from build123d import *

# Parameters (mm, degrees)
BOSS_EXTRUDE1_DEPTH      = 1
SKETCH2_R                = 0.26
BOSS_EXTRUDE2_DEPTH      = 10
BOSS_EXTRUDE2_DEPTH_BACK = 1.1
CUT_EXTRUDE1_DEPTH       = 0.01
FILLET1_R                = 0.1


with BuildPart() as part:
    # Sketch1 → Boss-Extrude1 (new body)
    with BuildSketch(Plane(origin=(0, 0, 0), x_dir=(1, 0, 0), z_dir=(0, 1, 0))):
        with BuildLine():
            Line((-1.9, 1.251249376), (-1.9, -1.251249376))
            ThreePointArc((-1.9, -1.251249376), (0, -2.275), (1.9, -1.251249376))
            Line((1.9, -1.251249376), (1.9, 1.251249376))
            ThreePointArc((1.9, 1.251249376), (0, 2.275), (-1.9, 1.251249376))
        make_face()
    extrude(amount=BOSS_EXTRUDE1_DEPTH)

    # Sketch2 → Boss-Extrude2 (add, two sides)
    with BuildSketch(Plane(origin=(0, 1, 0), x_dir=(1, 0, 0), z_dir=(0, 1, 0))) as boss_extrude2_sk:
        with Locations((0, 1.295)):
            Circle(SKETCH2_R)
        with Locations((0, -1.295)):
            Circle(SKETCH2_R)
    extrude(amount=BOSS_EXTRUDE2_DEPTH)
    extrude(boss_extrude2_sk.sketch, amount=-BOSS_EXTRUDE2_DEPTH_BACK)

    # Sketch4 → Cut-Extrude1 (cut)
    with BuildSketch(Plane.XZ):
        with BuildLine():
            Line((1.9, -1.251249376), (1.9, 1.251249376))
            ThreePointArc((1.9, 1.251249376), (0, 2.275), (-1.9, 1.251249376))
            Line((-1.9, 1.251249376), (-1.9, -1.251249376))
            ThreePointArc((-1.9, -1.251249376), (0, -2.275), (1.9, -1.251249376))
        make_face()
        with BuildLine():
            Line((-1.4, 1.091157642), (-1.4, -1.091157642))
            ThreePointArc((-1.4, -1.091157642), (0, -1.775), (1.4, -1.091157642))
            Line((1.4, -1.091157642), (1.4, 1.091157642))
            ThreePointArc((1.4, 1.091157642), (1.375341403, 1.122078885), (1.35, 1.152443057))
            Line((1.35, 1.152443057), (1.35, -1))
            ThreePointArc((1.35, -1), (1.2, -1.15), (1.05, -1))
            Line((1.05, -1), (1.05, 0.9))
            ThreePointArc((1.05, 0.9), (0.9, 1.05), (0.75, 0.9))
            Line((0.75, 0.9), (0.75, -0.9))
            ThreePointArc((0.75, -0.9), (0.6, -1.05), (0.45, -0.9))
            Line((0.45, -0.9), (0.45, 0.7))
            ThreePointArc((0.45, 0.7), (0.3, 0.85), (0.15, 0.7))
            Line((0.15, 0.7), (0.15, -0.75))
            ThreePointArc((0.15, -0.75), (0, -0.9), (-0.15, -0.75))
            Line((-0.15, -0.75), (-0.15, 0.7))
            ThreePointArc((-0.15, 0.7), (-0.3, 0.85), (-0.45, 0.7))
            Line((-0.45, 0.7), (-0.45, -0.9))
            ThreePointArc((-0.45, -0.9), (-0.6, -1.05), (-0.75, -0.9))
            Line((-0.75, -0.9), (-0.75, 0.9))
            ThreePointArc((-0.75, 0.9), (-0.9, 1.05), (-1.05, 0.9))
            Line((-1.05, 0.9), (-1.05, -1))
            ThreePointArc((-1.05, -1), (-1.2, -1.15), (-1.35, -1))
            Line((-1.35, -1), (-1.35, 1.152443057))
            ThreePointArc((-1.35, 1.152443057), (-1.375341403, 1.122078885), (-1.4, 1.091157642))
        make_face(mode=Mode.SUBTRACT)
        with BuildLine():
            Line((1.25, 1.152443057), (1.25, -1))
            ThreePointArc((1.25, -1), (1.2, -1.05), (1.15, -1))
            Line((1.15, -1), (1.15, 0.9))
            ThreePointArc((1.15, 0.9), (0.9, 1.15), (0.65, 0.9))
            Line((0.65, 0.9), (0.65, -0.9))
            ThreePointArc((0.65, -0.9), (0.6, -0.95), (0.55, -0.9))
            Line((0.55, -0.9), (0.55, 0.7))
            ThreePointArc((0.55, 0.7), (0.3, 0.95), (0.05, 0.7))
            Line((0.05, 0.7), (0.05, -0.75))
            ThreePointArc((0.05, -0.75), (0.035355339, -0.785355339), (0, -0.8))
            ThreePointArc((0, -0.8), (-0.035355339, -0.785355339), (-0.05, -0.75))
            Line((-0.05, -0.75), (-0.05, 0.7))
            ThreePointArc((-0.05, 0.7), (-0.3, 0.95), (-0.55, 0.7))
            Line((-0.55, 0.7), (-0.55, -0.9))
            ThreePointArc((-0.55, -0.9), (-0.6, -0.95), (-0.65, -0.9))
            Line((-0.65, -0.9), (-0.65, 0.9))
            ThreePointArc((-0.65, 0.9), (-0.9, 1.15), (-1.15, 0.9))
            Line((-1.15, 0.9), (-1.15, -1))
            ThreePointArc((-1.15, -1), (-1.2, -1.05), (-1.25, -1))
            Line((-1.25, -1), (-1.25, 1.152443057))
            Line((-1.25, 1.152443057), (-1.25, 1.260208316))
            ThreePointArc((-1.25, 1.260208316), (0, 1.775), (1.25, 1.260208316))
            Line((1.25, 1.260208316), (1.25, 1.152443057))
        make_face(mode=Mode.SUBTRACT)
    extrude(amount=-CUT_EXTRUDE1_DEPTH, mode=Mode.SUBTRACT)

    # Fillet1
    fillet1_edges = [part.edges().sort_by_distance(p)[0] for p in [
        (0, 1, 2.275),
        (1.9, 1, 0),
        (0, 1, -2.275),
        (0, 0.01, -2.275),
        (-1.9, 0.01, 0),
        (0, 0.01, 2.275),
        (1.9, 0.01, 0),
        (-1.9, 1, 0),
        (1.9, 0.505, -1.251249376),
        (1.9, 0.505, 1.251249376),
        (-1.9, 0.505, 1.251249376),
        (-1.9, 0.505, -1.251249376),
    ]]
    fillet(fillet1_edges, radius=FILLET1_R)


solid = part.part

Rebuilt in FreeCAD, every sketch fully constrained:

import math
import FreeCAD as App
import Part
import Sketcher
from FreeCAD import Vector
Q = App.Units.Quantity


def edges_at(feature, points):
    """Names of the edges that pass closest to the given points."""
    edges = feature.Shape.Edges
    near = lambda p: min(range(len(edges)), key=lambda i: edges[i].distToShape(Part.Vertex(*p))[0])
    return sorted({f"Edge{near(p) + 1}" for p in points})

doc = App.newDocument("Part")
body = doc.addObject("PartDesign::Body", "Body")

# Sketch on XZ plane
sketch1 = doc.addObject("Sketcher::SketchObject", "Sketch")
body.addObject(sketch1)
sketch1.AttachmentSupport = (doc.XZ_Plane, [""])
sketch1.MapMode = "FlatFace"
sketch1.addGeometry(Part.LineSegment(Vector(-1.9, -1.251249, 0), Vector(-1.9, 1.251249, 0)), False)
sketch1.addGeometry(Part.ArcOfCircle(Part.Circle(Vector(0, 0, 0), Vector(0, 0, 1), 2.275), math.radians(33.366994), math.radians(146.633006)), False)
sketch1.addGeometry(Part.LineSegment(Vector(1.9, 1.251249, 0), Vector(1.9, -1.251249, 0)), False)
sketch1.addGeometry(Part.ArcOfCircle(Part.Circle(Vector(0, 0, 0), Vector(0, 0, 1), 2.275), math.radians(-146.633006), math.radians(-33.366994)), False)
sketch1.addConstraint(Sketcher.Constraint("Coincident", 0, 2, 1, 2))
sketch1.addConstraint(Sketcher.Constraint("Coincident", 1, 1, 2, 1))
sketch1.addConstraint(Sketcher.Constraint("Coincident", 2, 2, 3, 2))
sketch1.addConstraint(Sketcher.Constraint("Coincident", 3, 1, 0, 1))
sketch1.addConstraint(Sketcher.Constraint("Vertical", 0))
sketch1.addConstraint(Sketcher.Constraint("Vertical", 2))
sketch1.addConstraint(Sketcher.Constraint("Coincident", 1, 3, -1, 1))
sketch1.addConstraint(Sketcher.Constraint("Coincident", 3, 3, -1, 1))
sketch1.addConstraint(Sketcher.Constraint("Equal", 1, 3))
sketch1.addConstraint(Sketcher.Constraint("Horizontal", 0, 2, 1, 1))
sketch1.addConstraint(Sketcher.Constraint("Radius", 1, Q("2.275 mm")))
sketch1.addConstraint(Sketcher.Constraint("DistanceX", 0, 2, -1, 1, Q("1.9 mm")))
pad1 = doc.addObject("PartDesign::Pad", "Pad")
body.addObject(pad1)
pad1.Profile = sketch1
pad1.Length = 1
pad1.Reversed = True

# Sketch on XZ plane
sketch2 = doc.addObject("Sketcher::SketchObject", "Sketch001")
body.addObject(sketch2)
sketch2.AttachmentSupport = (doc.XZ_Plane, [""])
sketch2.MapMode = "FlatFace"
sketch2.AttachmentOffset = App.Placement(Vector(0, 0, -1), App.Rotation())
sketch2.addGeometry(Part.Circle(Vector(0, -1.295, 0), Vector(0, 0, 1), 0.26), False)
sketch2.addGeometry(Part.Circle(Vector(0, 1.295, 0), Vector(0, 0, 1), 0.26), False)
sketch2.addConstraint(Sketcher.Constraint("Equal", 0, 1))
sketch2.addConstraint(Sketcher.Constraint("Symmetric", 0, 3, 1, 3, -1, 1))
sketch2.addConstraint(Sketcher.Constraint("PointOnObject", 0, 3, -2))
sketch2.addConstraint(Sketcher.Constraint("Diameter", 0, Q("0.52 mm")))
sketch2.addConstraint(Sketcher.Constraint("DistanceY", 0, 3, 1, 3, Q("2.59 mm")))
pad2 = doc.addObject("PartDesign::Pad", "Pad001")
body.addObject(pad2)
pad2.Profile = sketch2
pad2.Type = "TwoLengths"
pad2.Length = 10
pad2.Length2 = 1.1
pad2.Reversed = True

# Sketch on XZ plane
sketch3 = doc.addObject("Sketcher::SketchObject", "Sketch002")
body.addObject(sketch3)
sketch3.AttachmentSupport = (doc.XZ_Plane, [""])
sketch3.MapMode = "FlatFace"
sketch3.addGeometry(Part.LineSegment(Vector(1.9, -1.251249, 0), Vector(1.9, 1.251249, 0)), False)
sketch3.addGeometry(Part.ArcOfCircle(Part.Circle(Vector(0, 0, 0), Vector(0, 0, 1), 2.275), math.radians(33.366994), math.radians(146.633006)), False)
sketch3.addGeometry(Part.LineSegment(Vector(-1.9, 1.251249, 0), Vector(-1.9, -1.251249, 0)), False)
sketch3.addGeometry(Part.ArcOfCircle(Part.Circle(Vector(0, 0, 0), Vector(0, 0, 1), 2.275), math.radians(-146.633006), math.radians(-33.366994)), False)
sketch3.addGeometry(Part.LineSegment(Vector(-1.4, -1.091158, 0), Vector(-1.4, 1.091158, 0)), False)
sketch3.addGeometry(Part.ArcOfCircle(Part.Circle(Vector(0.000001, 0, 0), Vector(0, 0, 1), 1.775001), math.radians(139.51389), math.radians(142.067209)), False)
sketch3.addGeometry(Part.LineSegment(Vector(-1.35, 1.152443, 0), Vector(-1.35, -1, 0)), False)
sketch3.addGeometry(Part.ArcOfCircle(Part.Circle(Vector(-1.2, -1, 0), Vector(0, 0, 1), 0.15), math.radians(180), math.radians(360)), False)
sketch3.addGeometry(Part.LineSegment(Vector(-1.05, -1, 0), Vector(-1.05, 0.9, 0)), False)
sketch3.addGeometry(Part.ArcOfCircle(Part.Circle(Vector(-0.9, 0.9, 0), Vector(0, 0, 1), 0.15), math.radians(0), math.radians(180)), False)
sketch3.addGeometry(Part.LineSegment(Vector(-0.75, 0.9, 0), Vector(-0.75, -0.9, 0)), False)
sketch3.addGeometry(Part.ArcOfCircle(Part.Circle(Vector(-0.6, -0.9, 0), Vector(0, 0, 1), 0.15), math.radians(180), math.radians(360)), False)
sketch3.addGeometry(Part.LineSegment(Vector(-0.45, -0.9, 0), Vector(-0.45, 0.7, 0)), False)
sketch3.addGeometry(Part.ArcOfCircle(Part.Circle(Vector(-0.3, 0.7, 0), Vector(0, 0, 1), 0.15), math.radians(0), math.radians(180)), False)
sketch3.addGeometry(Part.LineSegment(Vector(-0.15, 0.7, 0), Vector(-0.15, -0.75, 0)), False)
sketch3.addGeometry(Part.ArcOfCircle(Part.Circle(Vector(0, -0.75, 0), Vector(0, 0, 1), 0.15), math.radians(180), math.radians(360)), False)
sketch3.addGeometry(Part.LineSegment(Vector(0.15, -0.75, 0), Vector(0.15, 0.7, 0)), False)
sketch3.addGeometry(Part.ArcOfCircle(Part.Circle(Vector(0.3, 0.7, 0), Vector(0, 0, 1), 0.15), math.radians(0), math.radians(180)), False)
sketch3.addGeometry(Part.LineSegment(Vector(0.45, 0.7, 0), Vector(0.45, -0.9, 0)), False)
sketch3.addGeometry(Part.ArcOfCircle(Part.Circle(Vector(0.6, -0.9, 0), Vector(0, 0, 1), 0.15), math.radians(180), math.radians(360)), False)
sketch3.addGeometry(Part.LineSegment(Vector(0.75, -0.9, 0), Vector(0.75, 0.9, 0)), False)
sketch3.addGeometry(Part.ArcOfCircle(Part.Circle(Vector(0.9, 0.9, 0), Vector(0, 0, 1), 0.15), math.radians(0), math.radians(180)), False)
sketch3.addGeometry(Part.LineSegment(Vector(1.05, 0.9, 0), Vector(1.05, -1, 0)), False)
sketch3.addGeometry(Part.ArcOfCircle(Part.Circle(Vector(1.2, -1, 0), Vector(0, 0, 1), 0.15), math.radians(180), math.radians(360)), False)
sketch3.addGeometry(Part.LineSegment(Vector(1.35, -1, 0), Vector(1.35, 1.152443, 0)), False)
sketch3.addGeometry(Part.ArcOfCircle(Part.Circle(Vector(-0.000001, 0, 0), Vector(0, 0, 1), 1.775001), math.radians(37.932791), math.radians(40.48611)), False)
sketch3.addGeometry(Part.LineSegment(Vector(1.4, 1.091158, 0), Vector(1.4, -1.091158, 0)), False)
sketch3.addGeometry(Part.ArcOfCircle(Part.Circle(Vector(0, 0, 0), Vector(0, 0, 1), 1.775), math.radians(-142.067209), math.radians(-37.932791)), False)
sketch3.addGeometry(Part.LineSegment(Vector(1.25, 1.260208, 0), Vector(1.25, -1, 0)), False)
sketch3.addGeometry(Part.ArcOfCircle(Part.Circle(Vector(1.2, -1, 0), Vector(0, 0, 1), 0.05), math.radians(180), math.radians(360)), False)
sketch3.addGeometry(Part.LineSegment(Vector(1.15, -1, 0), Vector(1.15, 0.9, 0)), False)
sketch3.addGeometry(Part.ArcOfCircle(Part.Circle(Vector(0.9, 0.9, 0), Vector(0, 0, 1), 0.25), math.radians(0), math.radians(180)), False)
sketch3.addGeometry(Part.LineSegment(Vector(0.65, 0.9, 0), Vector(0.65, -0.9, 0)), False)
sketch3.addGeometry(Part.ArcOfCircle(Part.Circle(Vector(0.6, -0.9, 0), Vector(0, 0, 1), 0.05), math.radians(180), math.radians(360)), False)
sketch3.addGeometry(Part.LineSegment(Vector(0.55, -0.9, 0), Vector(0.55, 0.7, 0)), False)
sketch3.addGeometry(Part.ArcOfCircle(Part.Circle(Vector(0.3, 0.7, 0), Vector(0, 0, 1), 0.25), math.radians(0), math.radians(180)), False)
sketch3.addGeometry(Part.LineSegment(Vector(0.05, 0.7, 0), Vector(0.05, -0.75, 0)), False)
sketch3.addGeometry(Part.ArcOfCircle(Part.Circle(Vector(0, -0.75, 0), Vector(0, 0, 1), 0.05), math.radians(-90), math.radians(0)), False)
sketch3.addGeometry(Part.ArcOfCircle(Part.Circle(Vector(0, -0.75, 0), Vector(0, 0, 1), 0.05), math.radians(180), math.radians(270)), False)
sketch3.addGeometry(Part.LineSegment(Vector(-0.05, -0.75, 0), Vector(-0.05, 0.7, 0)), False)
sketch3.addGeometry(Part.ArcOfCircle(Part.Circle(Vector(-0.3, 0.7, 0), Vector(0, 0, 1), 0.25), math.radians(0), math.radians(180)), False)
sketch3.addGeometry(Part.LineSegment(Vector(-0.55, 0.7, 0), Vector(-0.55, -0.9, 0)), False)
sketch3.addGeometry(Part.ArcOfCircle(Part.Circle(Vector(-0.6, -0.9, 0), Vector(0, 0, 1), 0.05), math.radians(180), math.radians(360)), False)
sketch3.addGeometry(Part.LineSegment(Vector(-0.65, -0.9, 0), Vector(-0.65, 0.9, 0)), False)
sketch3.addGeometry(Part.ArcOfCircle(Part.Circle(Vector(-0.9, 0.9, 0), Vector(0, 0, 1), 0.25), math.radians(0), math.radians(180)), False)
sketch3.addGeometry(Part.LineSegment(Vector(-1.15, 0.9, 0), Vector(-1.15, -1, 0)), False)
sketch3.addGeometry(Part.ArcOfCircle(Part.Circle(Vector(-1.2, -1, 0), Vector(0, 0, 1), 0.05), math.radians(180), math.radians(360)), False)
sketch3.addGeometry(Part.LineSegment(Vector(-1.25, -1, 0), Vector(-1.25, 1.260208, 0)), False)
sketch3.addGeometry(Part.ArcOfCircle(Part.Circle(Vector(0, 0, 0), Vector(0, 0, 1), 1.775), math.radians(45.233005), math.radians(134.766995)), False)
sketch3.addConstraint(Sketcher.Constraint("Coincident", 0, 2, 1, 1))
sketch3.addConstraint(Sketcher.Constraint("Coincident", 1, 2, 2, 1))
sketch3.addConstraint(Sketcher.Constraint("Coincident", 2, 2, 3, 1))
sketch3.addConstraint(Sketcher.Constraint("Coincident", 3, 2, 0, 1))
sketch3.addConstraint(Sketcher.Constraint("Coincident", 4, 2, 5, 2))
sketch3.addConstraint(Sketcher.Constraint("Coincident", 5, 1, 6, 1))
sketch3.addConstraint(Sketcher.Constraint("Tangent", 6, 2, 7, 1))
sketch3.addConstraint(Sketcher.Constraint("Tangent", 7, 2, 8, 1))
sketch3.addConstraint(Sketcher.Constraint("Tangent", 8, 2, 9, 2))
sketch3.addConstraint(Sketcher.Constraint("Tangent", 9, 1, 10, 1))
sketch3.addConstraint(Sketcher.Constraint("Tangent", 10, 2, 11, 1))
sketch3.addConstraint(Sketcher.Constraint("Tangent", 11, 2, 12, 1))
sketch3.addConstraint(Sketcher.Constraint("Tangent", 12, 2, 13, 2))
sketch3.addConstraint(Sketcher.Constraint("Tangent", 13, 1, 14, 1))
sketch3.addConstraint(Sketcher.Constraint("Tangent", 14, 2, 15, 1))
sketch3.addConstraint(Sketcher.Constraint("Tangent", 15, 2, 16, 1))
sketch3.addConstraint(Sketcher.Constraint("Tangent", 16, 2, 17, 2))
sketch3.addConstraint(Sketcher.Constraint("Tangent", 17, 1, 18, 1))
sketch3.addConstraint(Sketcher.Constraint("Tangent", 18, 2, 19, 1))
sketch3.addConstraint(Sketcher.Constraint("Tangent", 19, 2, 20, 1))
sketch3.addConstraint(Sketcher.Constraint("Tangent", 20, 2, 21, 2))
sketch3.addConstraint(Sketcher.Constraint("Tangent", 21, 1, 22, 1))
sketch3.addConstraint(Sketcher.Constraint("Tangent", 22, 2, 23, 1))
sketch3.addConstraint(Sketcher.Constraint("Tangent", 23, 2, 24, 1))
sketch3.addConstraint(Sketcher.Constraint("Coincident", 24, 2, 25, 2))
sketch3.addConstraint(Sketcher.Constraint("Coincident", 25, 1, 26, 1))
sketch3.addConstraint(Sketcher.Constraint("Coincident", 26, 2, 27, 2))
sketch3.addConstraint(Sketcher.Constraint("Coincident", 27, 1, 4, 1))
sketch3.addConstraint(Sketcher.Constraint("Tangent", 28, 2, 29, 2))
sketch3.addConstraint(Sketcher.Constraint("Tangent", 29, 1, 30, 1))
sketch3.addConstraint(Sketcher.Constraint("Tangent", 30, 2, 31, 1))
sketch3.addConstraint(Sketcher.Constraint("Tangent", 31, 2, 32, 1))
sketch3.addConstraint(Sketcher.Constraint("Tangent", 32, 2, 33, 2))
sketch3.addConstraint(Sketcher.Constraint("Tangent", 33, 1, 34, 1))
sketch3.addConstraint(Sketcher.Constraint("Tangent", 34, 2, 35, 1))
sketch3.addConstraint(Sketcher.Constraint("Tangent", 35, 2, 36, 1))
sketch3.addConstraint(Sketcher.Constraint("Tangent", 36, 2, 37, 2))
sketch3.addConstraint(Sketcher.Constraint("Tangent", 37, 1, 38, 2))
sketch3.addConstraint(Sketcher.Constraint("Tangent", 38, 1, 39, 1))
sketch3.addConstraint(Sketcher.Constraint("Tangent", 39, 2, 40, 1))
sketch3.addConstraint(Sketcher.Constraint("Tangent", 40, 2, 41, 1))
sketch3.addConstraint(Sketcher.Constraint("Tangent", 41, 2, 42, 2))
sketch3.addConstraint(Sketcher.Constraint("Tangent", 42, 1, 43, 1))
sketch3.addConstraint(Sketcher.Constraint("Tangent", 43, 2, 44, 1))
sketch3.addConstraint(Sketcher.Constraint("Tangent", 44, 2, 45, 1))
sketch3.addConstraint(Sketcher.Constraint("Tangent", 45, 2, 46, 2))
sketch3.addConstraint(Sketcher.Constraint("Tangent", 46, 1, 47, 1))
sketch3.addConstraint(Sketcher.Constraint("Coincident", 47, 2, 48, 2))
sketch3.addConstraint(Sketcher.Constraint("Coincident", 48, 1, 28, 1))
sketch3.addConstraint(Sketcher.Constraint("Vertical", 0))
sketch3.addConstraint(Sketcher.Constraint("Vertical", 2))
sketch3.addConstraint(Sketcher.Constraint("Vertical", 4))
sketch3.addConstraint(Sketcher.Constraint("Vertical", 6))
sketch3.addConstraint(Sketcher.Constraint("Vertical", 8))
sketch3.addConstraint(Sketcher.Constraint("Vertical", 10))
sketch3.addConstraint(Sketcher.Constraint("Vertical", 12))
sketch3.addConstraint(Sketcher.Constraint("Vertical", 14))
sketch3.addConstraint(Sketcher.Constraint("Vertical", 16))
sketch3.addConstraint(Sketcher.Constraint("Vertical", 18))
sketch3.addConstraint(Sketcher.Constraint("Vertical", 20))
sketch3.addConstraint(Sketcher.Constraint("Vertical", 22))
sketch3.addConstraint(Sketcher.Constraint("Vertical", 24))
sketch3.addConstraint(Sketcher.Constraint("Vertical", 26))
sketch3.addConstraint(Sketcher.Constraint("Vertical", 28))
sketch3.addConstraint(Sketcher.Constraint("Vertical", 30))
sketch3.addConstraint(Sketcher.Constraint("Vertical", 32))
sketch3.addConstraint(Sketcher.Constraint("Vertical", 34))
sketch3.addConstraint(Sketcher.Constraint("Vertical", 36))
sketch3.addConstraint(Sketcher.Constraint("Vertical", 39))
sketch3.addConstraint(Sketcher.Constraint("Vertical", 41))
sketch3.addConstraint(Sketcher.Constraint("Vertical", 43))
sketch3.addConstraint(Sketcher.Constraint("Vertical", 45))
sketch3.addConstraint(Sketcher.Constraint("Vertical", 47))
sketch3.addConstraint(Sketcher.Constraint("Coincident", 1, 3, -1, 1))
sketch3.addConstraint(Sketcher.Constraint("Coincident", 3, 3, -1, 1))
sketch3.addConstraint(Sketcher.Constraint("Coincident", 5, 3, -1, 1))
sketch3.addConstraint(Sketcher.Constraint("Coincident", 25, 3, -1, 1))
sketch3.addConstraint(Sketcher.Constraint("Coincident", 27, 3, -1, 1))
sketch3.addConstraint(Sketcher.Constraint("Coincident", 48, 3, -1, 1))
sketch3.addConstraint(Sketcher.Constraint("Coincident", 29, 3, 23, 3))
sketch3.addConstraint(Sketcher.Constraint("Coincident", 31, 3, 21, 3))
sketch3.addConstraint(Sketcher.Constraint("Coincident", 33, 3, 19, 3))
sketch3.addConstraint(Sketcher.Constraint("Coincident", 35, 3, 17, 3))
sketch3.addConstraint(Sketcher.Constraint("Coincident", 37, 3, 15, 3))
sketch3.addConstraint(Sketcher.Constraint("Coincident", 40, 3, 13, 3))
sketch3.addConstraint(Sketcher.Constraint("Coincident", 42, 3, 11, 3))
sketch3.addConstraint(Sketcher.Constraint("Coincident", 44, 3, 9, 3))
sketch3.addConstraint(Sketcher.Constraint("Coincident", 46, 3, 7, 3))
sketch3.addConstraint(Sketcher.Constraint("Equal", 1, 3))
sketch3.addConstraint(Sketcher.Constraint("Equal", 7, 9))
sketch3.addConstraint(Sketcher.Constraint("Equal", 9, 11))
sketch3.addConstraint(Sketcher.Constraint("Equal", 11, 13))
sketch3.addConstraint(Sketcher.Constraint("Equal", 13, 15))
sketch3.addConstraint(Sketcher.Constraint("Equal", 15, 17))
sketch3.addConstraint(Sketcher.Constraint("Equal", 17, 19))
sketch3.addConstraint(Sketcher.Constraint("Equal", 19, 21))
sketch3.addConstraint(Sketcher.Constraint("Equal", 21, 23))
sketch3.addConstraint(Sketcher.Constraint("Equal", 5, 25))
sketch3.addConstraint(Sketcher.Constraint("Equal", 25, 27))
sketch3.addConstraint(Sketcher.Constraint("Equal", 37, 38))
sketch3.addConstraint(Sketcher.Constraint("Equal", 27, 48))
sketch3.addConstraint(Sketcher.Constraint("Symmetric", 9, 1, 19, 2, -1, 1))
sketch3.addConstraint(Sketcher.Constraint("PointOnObject", 37, 1, -2))
sketch3.addConstraint(Sketcher.Constraint("Horizontal", 13, 3, 17, 3))
sketch3.addConstraint(Sketcher.Constraint("Horizontal", 11, 3, 19, 3))
sketch3.addConstraint(Sketcher.Constraint("Horizontal", 9, 3, 21, 3))
sketch3.addConstraint(Sketcher.Constraint("Horizontal", 7, 3, 23, 3))
sketch3.addConstraint(Sketcher.Constraint("Horizontal", 0, 2, 1, 2))
sketch3.addConstraint(Sketcher.Constraint("Horizontal", 4, 2, 25, 1))
sketch3.addConstraint(Sketcher.Constraint("Radius", 7, Q("0.15 mm")))
sketch3.addConstraint(Sketcher.Constraint("Radius", 29, Q("0.05 mm")))
sketch3.addConstraint(Sketcher.Constraint("DistanceY", 8, 1, 8, 2, Q("1.9 mm")))
sketch3.addConstraint(Sketcher.Constraint("DistanceY", 10, 2, 10, 1, Q("1.8 mm")))
sketch3.addConstraint(Sketcher.Constraint("DistanceY", 12, 1, 12, 2, Q("1.6 mm")))
sketch3.addConstraint(Sketcher.Constraint("Radius", 1, Q("2.275 mm")))
sketch3.addConstraint(Sketcher.Constraint("Radius", 5, Q("1.775001 mm")))
sketch3.addConstraint(Sketcher.Constraint("DistanceY", 14, 2, 14, 1, Q("1.45 mm")))
sketch3.addConstraint(Sketcher.Constraint("DistanceX", -1, 1, 0, 2, Q("1.9 mm")))
sketch3.addConstraint(Sketcher.Constraint("DistanceX", 4, 2, -1, 1, Q("1.4 mm")))
pocket1 = doc.addObject("PartDesign::Pocket", "Pocket")
body.addObject(pocket1)
pocket1.Profile = sketch3
pocket1.Length = 0.01
doc.recompute()

fillet = doc.addObject("PartDesign::Fillet", "Fillet")
body.addObject(fillet)
fillet.Base = (pocket1, edges_at(pocket1, [
    (0, 1, 2.275),
    (1.9, 1, 0),
    (0, 1, -2.275),
    (0, 0.01, -2.275),
    (-1.9, 0.01, 0),
    (0, 0.01, 2.275),
    (1.9, 0.01, 0),
    (-1.9, 1, 0),
    (1.9, 0.505, -1.251),
    (1.9, 0.505, 1.251),
    (-1.9, 0.505, 1.251),
    (-1.9, 0.505, -1.251),
]))
fillet.Radius = 0.1

doc.recompute()
